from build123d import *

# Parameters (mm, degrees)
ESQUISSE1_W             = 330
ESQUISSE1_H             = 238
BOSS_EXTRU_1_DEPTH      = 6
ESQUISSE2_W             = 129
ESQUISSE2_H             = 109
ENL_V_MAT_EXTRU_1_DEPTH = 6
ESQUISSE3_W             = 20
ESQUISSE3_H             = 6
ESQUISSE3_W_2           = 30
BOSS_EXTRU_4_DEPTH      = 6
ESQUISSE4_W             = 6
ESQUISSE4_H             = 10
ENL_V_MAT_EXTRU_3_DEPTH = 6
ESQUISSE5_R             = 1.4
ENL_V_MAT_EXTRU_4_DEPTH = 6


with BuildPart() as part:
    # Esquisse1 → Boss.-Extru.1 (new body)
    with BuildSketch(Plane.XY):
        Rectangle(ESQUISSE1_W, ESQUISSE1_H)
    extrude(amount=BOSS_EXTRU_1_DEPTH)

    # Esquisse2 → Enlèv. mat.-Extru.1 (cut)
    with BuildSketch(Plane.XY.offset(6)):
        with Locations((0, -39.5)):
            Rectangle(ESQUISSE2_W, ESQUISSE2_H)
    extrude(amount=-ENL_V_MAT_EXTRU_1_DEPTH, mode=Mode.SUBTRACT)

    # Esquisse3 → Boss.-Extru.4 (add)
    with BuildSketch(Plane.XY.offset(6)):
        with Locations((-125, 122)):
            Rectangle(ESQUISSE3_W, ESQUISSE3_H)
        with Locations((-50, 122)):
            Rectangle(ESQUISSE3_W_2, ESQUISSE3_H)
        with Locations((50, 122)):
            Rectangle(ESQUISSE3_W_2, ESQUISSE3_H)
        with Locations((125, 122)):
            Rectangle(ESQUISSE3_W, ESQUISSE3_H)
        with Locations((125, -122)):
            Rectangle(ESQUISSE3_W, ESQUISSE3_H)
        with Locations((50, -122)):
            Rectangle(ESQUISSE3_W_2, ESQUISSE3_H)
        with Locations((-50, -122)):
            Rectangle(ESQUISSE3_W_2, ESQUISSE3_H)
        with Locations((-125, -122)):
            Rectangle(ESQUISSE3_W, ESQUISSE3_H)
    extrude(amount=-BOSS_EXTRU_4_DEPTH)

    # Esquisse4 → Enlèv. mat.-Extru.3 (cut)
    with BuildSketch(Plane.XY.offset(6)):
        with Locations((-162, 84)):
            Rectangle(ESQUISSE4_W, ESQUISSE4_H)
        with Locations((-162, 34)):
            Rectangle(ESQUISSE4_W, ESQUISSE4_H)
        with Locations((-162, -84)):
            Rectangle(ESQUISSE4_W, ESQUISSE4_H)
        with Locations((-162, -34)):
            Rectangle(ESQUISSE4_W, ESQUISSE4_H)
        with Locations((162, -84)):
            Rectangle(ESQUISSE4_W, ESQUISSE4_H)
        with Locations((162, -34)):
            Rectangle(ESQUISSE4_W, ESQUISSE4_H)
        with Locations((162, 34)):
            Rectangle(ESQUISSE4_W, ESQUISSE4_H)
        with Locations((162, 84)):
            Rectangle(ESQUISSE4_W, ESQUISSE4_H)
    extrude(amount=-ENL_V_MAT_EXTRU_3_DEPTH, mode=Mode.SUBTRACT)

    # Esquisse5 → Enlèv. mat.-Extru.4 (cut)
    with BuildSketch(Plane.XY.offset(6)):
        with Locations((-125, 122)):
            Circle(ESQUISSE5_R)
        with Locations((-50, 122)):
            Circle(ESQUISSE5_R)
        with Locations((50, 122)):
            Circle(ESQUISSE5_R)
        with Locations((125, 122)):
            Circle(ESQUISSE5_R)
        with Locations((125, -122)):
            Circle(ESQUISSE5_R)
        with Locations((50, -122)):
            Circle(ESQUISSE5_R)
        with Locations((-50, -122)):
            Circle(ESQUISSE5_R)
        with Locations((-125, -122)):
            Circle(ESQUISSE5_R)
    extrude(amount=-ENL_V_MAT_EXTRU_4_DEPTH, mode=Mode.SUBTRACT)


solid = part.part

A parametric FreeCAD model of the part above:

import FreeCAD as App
import Part
import Sketcher
Q = App.Units.Quantity

doc = App.newDocument("Part")
body = doc.addObject("PartDesign::Body", "Body")

sketch1 = body.newObject("Sketcher::SketchObject", "Sketch")
sketch1.AttachmentSupport = (doc.getObject("XY_Plane"), [""])
sketch1.MapMode = "FlatFace"
sketch1.addGeometry(Part.LineSegment(App.Vector(-165, 119, 0), App.Vector(-165, -119, 0)), False)
sketch1.addGeometry(Part.LineSegment(App.Vector(-165, -119, 0), App.Vector(165, -119, 0)), False)
sketch1.addGeometry(Part.LineSegment(App.Vector(165, -119, 0), App.Vector(165, 119, 0)), False)
sketch1.addGeometry(Part.LineSegment(App.Vector(165, 119, 0), App.Vector(-165, 119, 0)), False)
sketch1.addConstraint(Sketcher.Constraint("Coincident", 0, 2, 1, 1))
sketch1.addConstraint(Sketcher.Constraint("Coincident", 1, 2, 2, 1))
sketch1.addConstraint(Sketcher.Constraint("Coincident", 2, 2, 3, 1))
sketch1.addConstraint(Sketcher.Constraint("Coincident", 3, 2, 0, 1))
sketch1.addConstraint(Sketcher.Constraint("Vertical", 0))
sketch1.addConstraint(Sketcher.Constraint("Horizontal", 1))
sketch1.addConstraint(Sketcher.Constraint("Vertical", 2))
sketch1.addConstraint(Sketcher.Constraint("Horizontal", 3))
sketch1.addConstraint(Sketcher.Constraint("Symmetric", 0, 2, 2, 2, -1, 1))
sketch1.addConstraint(Sketcher.Constraint("DistanceX", 1, 1, 1, 2, Q("330 mm")))
sketch1.addConstraint(Sketcher.Constraint("DistanceY", 0, 2, 0, 1, Q("238 mm")))
pad1 = body.newObject("PartDesign::Pad", "Pad")
pad1.Profile = sketch1
pad1.Length = 6

sketch2 = body.newObject("Sketcher::SketchObject", "Sketch001")
sketch2.AttachmentSupport = (doc.getObject("XY_Plane"), [""])
sketch2.MapMode = "FlatFace"
sketch2.AttachmentOffset = App.Placement(App.Vector(0, 0, 6), App.Rotation())
sketch2.addGeometry(Part.LineSegment(App.Vector(-64, 15, 0), App.Vector(-64, -94, 0)), False)
sketch2.addGeometry(Part.LineSegment(App.Vector(-64, -94, 0), App.Vector(64, -94, 0)), False)
sketch2.addGeometry(Part.LineSegment(App.Vector(64, -94, 0), App.Vector(64, 15, 0)), False)
sketch2.addGeometry(Part.LineSegment(App.Vector(64, 15, 0), App.Vector(-64, 15, 0)), False)
sketch2.addConstraint(Sketcher.Constraint("Coincident", 0, 2, 1, 1))
sketch2.addConstraint(Sketcher.Constraint("Coincident", 1, 2, 2, 1))
sketch2.addConstraint(Sketcher.Constraint("Coincident", 2, 2, 3, 1))
sketch2.addConstraint(Sketcher.Constraint("Coincident", 3, 2, 0, 1))
sketch2.addConstraint(Sketcher.Constraint("Vertical", 0))
sketch2.addConstraint(Sketcher.Constraint("Horizontal", 1))
sketch2.addConstraint(Sketcher.Constraint("Vertical", 2))
sketch2.addConstraint(Sketcher.Constraint("Horizontal", 3))
sketch2.addConstraint(Sketcher.Constraint("DistanceX", 1, 1, 1, 2, Q("129 mm")))
sketch2.addConstraint(Sketcher.Constraint("DistanceY", 0, 2, 0, 1, Q("109 mm")))
sketch2.addConstraint(Sketcher.Constraint("DistanceY", 0, 2, -1, 1, Q("94 mm")))
sketch2.addConstraint(Sketcher.Constraint("DistanceX", 0, 2, -1, 1, Q("64.5 mm")))
pocket1 = body.newObject("PartDesign::Pocket", "Pocket")
pocket1.Profile = sketch2
pocket1.Length = 6

sketch3 = body.newObject("Sketcher::SketchObject", "Sketch002")
sketch3.AttachmentSupport = (doc.getObject("XY_Plane"), [""])
sketch3.MapMode = "FlatFace"
sketch3.AttachmentOffset = App.Placement(App.Vector(0, 0, 6), App.Rotation())
sketch3.addGeometry(Part.LineSegment(App.Vector(-135, 125, 0), App.Vector(-135, 119, 0)), False)
sketch3.addGeometry(Part.LineSegment(App.Vector(-135, 119, 0), App.Vector(-115, 119, 0)), False)
sketch3.addGeometry(Part.LineSegment(App.Vector(-115, 119, 0), App.Vector(-115, 125, 0)), False)
sketch3.addGeometry(Part.LineSegment(App.Vector(-115, 125, 0), App.Vector(-135, 125, 0)), False)
sketch3.addGeometry(Part.LineSegment(App.Vector(-65, 125, 0), App.Vector(-65, 119, 0)), False)
sketch3.addGeometry(Part.LineSegment(App.Vector(-65, 119, 0), App.Vector(-35, 119, 0)), False)
sketch3.addGeometry(Part.LineSegment(App.Vector(-35, 119, 0), App.Vector(-35, 125, 0)), False)
sketch3.addGeometry(Part.LineSegment(App.Vector(-35, 125, 0), App.Vector(-65, 125, 0)), False)
sketch3.addGeometry(Part.LineSegment(App.Vector(35, 125, 0), App.Vector(35, 119, 0)), False)
sketch3.addGeometry(Part.LineSegment(App.Vector(35, 119, 0), App.Vector(65, 119, 0)), False)
sketch3.addGeometry(Part.LineSegment(App.Vector(65, 119, 0), App.Vector(65, 125, 0)), False)
sketch3.addGeometry(Part.LineSegment(App.Vector(65, 125, 0), App.Vector(35, 125, 0)), False)
sketch3.addGeometry(Part.LineSegment(App.Vector(115, 125, 0), App.Vector(115, 119, 0)), False)
sketch3.addGeometry(Part.LineSegment(App.Vector(115, 119, 0), App.Vector(135, 119, 0)), False)
sketch3.addGeometry(Part.LineSegment(App.Vector(135, 119, 0), App.Vector(135, 125, 0)), False)
sketch3.addGeometry(Part.LineSegment(App.Vector(135, 125, 0), App.Vector(115, 125, 0)), False)
sketch3.addGeometry(Part.LineSegment(App.Vector(115, -119, 0), App.Vector(115, -125, 0)), False)
sketch3.addGeometry(Part.LineSegment(App.Vector(115, -125, 0), App.Vector(135, -125, 0)), False)
sketch3.addGeometry(Part.LineSegment(App.Vector(135, -125, 0), App.Vector(135, -119, 0)), False)
sketch3.addGeometry(Part.LineSegment(App.Vector(135, -119, 0), App.Vector(115, -119, 0)), False)
sketch3.addGeometry(Part.LineSegment(App.Vector(35, -119, 0), App.Vector(35, -125, 0)), False)
sketch3.addGeometry(Part.LineSegment(App.Vector(35, -125, 0), App.Vector(65, -125, 0)), False)
sketch3.addGeometry(Part.LineSegment(App.Vector(65, -125, 0), App.Vector(65, -119, 0)), False)
sketch3.addGeometry(Part.LineSegment(App.Vector(65, -119, 0), App.Vector(35, -119, 0)), False)
sketch3.addGeometry(Part.LineSegment(App.Vector(-65, -119, 0), App.Vector(-65, -125, 0)), False)
sketch3.addGeometry(Part.LineSegment(App.Vector(-65, -125, 0), App.Vector(-35, -125, 0)), False)
sketch3.addGeometry(Part.LineSegment(App.Vector(-35, -125, 0), App.Vector(-35, -119, 0)), False)
sketch3.addGeometry(Part.LineSegment(App.Vector(-35, -119, 0), App.Vector(-65, -119, 0)), False)
sketch3.addGeometry(Part.LineSegment(App.Vector(-135, -119, 0), App.Vector(-135, -125, 0)), False)
sketch3.addGeometry(Part.LineSegment(App.Vector(-135, -125, 0), App.Vector(-115, -125, 0)), False)
sketch3.addGeometry(Part.LineSegment(App.Vector(-115, -125, 0), App.Vector(-115, -119, 0)), False)
sketch3.addGeometry(Part.LineSegment(App.Vector(-115, -119, 0), App.Vector(-135, -119, 0)), False)
sketch3.addConstraint(Sketcher.Constraint("Coincident", 0, 2, 1, 1))
sketch3.addConstraint(Sketcher.Constraint("Coincident", 1, 2, 2, 1))
sketch3.addConstraint(Sketcher.Constraint("Coincident", 2, 2, 3, 1))
sketch3.addConstraint(Sketcher.Constraint("Coincident", 3, 2, 0, 1))
sketch3.addConstraint(Sketcher.Constraint("Coincident", 4, 2, 5, 1))
sketch3.addConstraint(Sketcher.Constraint("Coincident", 5, 2, 6, 1))
sketch3.addConstraint(Sketcher.Constraint("Coincident", 6, 2, 7, 1))
sketch3.addConstraint(Sketcher.Constraint("Coincident", 7, 2, 4, 1))
sketch3.addConstraint(Sketcher.Constraint("Coincident", 8, 2, 9, 1))
sketch3.addConstraint(Sketcher.Constraint("Coincident", 9, 2, 10, 1))
sketch3.addConstraint(Sketcher.Constraint("Coincident", 10, 2, 11, 1))
sketch3.addConstraint(Sketcher.Constraint("Coincident", 11, 2, 8, 1))
sketch3.addConstraint(Sketcher.Constraint("Coincident", 12, 2, 13, 1))
sketch3.addConstraint(Sketcher.Constraint("Coincident", 13, 2, 14, 1))
sketch3.addConstraint(Sketcher.Constraint("Coincident", 14, 2, 15, 1))
sketch3.addConstraint(Sketcher.Constraint("Coincident", 15, 2, 12, 1))
sketch3.addConstraint(Sketcher.Constraint("Coincident", 16, 2, 17, 1))
sketch3.addConstraint(Sketcher.Constraint("Coincident", 17, 2, 18, 1))
sketch3.addConstraint(Sketcher.Constraint("Coincident", 18, 2, 19, 1))
sketch3.addConstraint(Sketcher.Constraint("Coincident", 19, 2, 16, 1))
sketch3.addConstraint(Sketcher.Constraint("Coincident", 20, 2, 21, 1))
sketch3.addConstraint(Sketcher.Constraint("Coincident", 21, 2, 22, 1))
sketch3.addConstraint(Sketcher.Constraint("Coincident", 22, 2, 23, 1))
sketch3.addConstraint(Sketcher.Constraint("Coincident", 23, 2, 20, 1))
sketch3.addConstraint(Sketcher.Constraint("Coincident", 24, 2, 25, 1))
sketch3.addConstraint(Sketcher.Constraint("Coincident", 25, 2, 26, 1))
sketch3.addConstraint(Sketcher.Constraint("Coincident", 26, 2, 27, 1))
sketch3.addConstraint(Sketcher.Constraint("Coincident", 27, 2, 24, 1))
sketch3.addConstraint(Sketcher.Constraint("Coincident", 28, 2, 29, 1))
sketch3.addConstraint(Sketcher.Constraint("Coincident", 29, 2, 30, 1))
sketch3.addConstraint(Sketcher.Constraint("Coincident", 30, 2, 31, 1))
sketch3.addConstraint(Sketcher.Constraint("Coincident", 31, 2, 28, 1))
sketch3.addConstraint(Sketcher.Constraint("Vertical", 0))
sketch3.addConstraint(Sketcher.Constraint("Horizontal", 1))
sketch3.addConstraint(Sketcher.Constraint("Vertical", 2))
sketch3.addConstraint(Sketcher.Constraint("Horizontal", 3))
sketch3.addConstraint(Sketcher.Constraint("Vertical", 4))
sketch3.addConstraint(Sketcher.Constraint("Horizontal", 5))
sketch3.addConstraint(Sketcher.Constraint("Vertical", 6))
sketch3.addConstraint(Sketcher.Constraint("Horizontal", 7))
sketch3.addConstraint(Sketcher.Constraint("Vertical", 8))
sketch3.addConstraint(Sketcher.Constraint("Horizontal", 9))
sketch3.addConstraint(Sketcher.Constraint("Vertical", 10))
sketch3.addConstraint(Sketcher.Constraint("Horizontal", 11))
sketch3.addConstraint(Sketcher.Constraint("Vertical", 12))
sketch3.addConstraint(Sketcher.Constraint("Horizontal", 13))
sketch3.addConstraint(Sketcher.Constraint("Vertical", 14))
sketch3.addConstraint(Sketcher.Constraint("Horizontal", 15))
sketch3.addConstraint(Sketcher.Constraint("Vertical", 16))
sketch3.addConstraint(Sketcher.Constraint("Horizontal", 17))
sketch3.addConstraint(Sketcher.Constraint("Vertical", 18))
sketch3.addConstraint(Sketcher.Constraint("Horizontal", 19))
sketch3.addConstraint(Sketcher.Constraint("Vertical", 20))
sketch3.addConstraint(Sketcher.Constraint("Horizontal", 21))
sketch3.addConstraint(Sketcher.Constraint("Vertical", 22))
sketch3.addConstraint(Sketcher.Constraint("Horizontal", 23))
sketch3.addConstraint(Sketcher.Constraint("Vertical", 24))
sketch3.addConstraint(Sketcher.Constraint("Horizontal", 25))
sketch3.addConstraint(Sketcher.Constraint("Vertical", 26))
sketch3.addConstraint(Sketcher.Constraint("Horizontal", 27))
sketch3.addConstraint(Sketcher.Constraint("Vertical", 28))
sketch3.addConstraint(Sketcher.Constraint("Horizontal", 29))
sketch3.addConstraint(Sketcher.Constraint("Vertical", 30))
sketch3.addConstraint(Sketcher.Constraint("Horizontal", 31))
sketch3.addConstraint(Sketcher.Constraint("Symmetric", 2, 2, 16, 2, -1, 1))
sketch3.addConstraint(Sketcher.Constraint("Symmetric", 0, 2, 18, 2, -1, 1))
sketch3.addConstraint(Sketcher.Constraint("Symmetric", 6, 2, 20, 2, -1, 1))
sketch3.addConstraint(Sketcher.Constraint("Symmetric", 4, 2, 22, 2, -1, 1))
sketch3.addConstraint(Sketcher.Constraint("Symmetric", 10, 2, 24, 2, -1, 1))
sketch3.addConstraint(Sketcher.Constraint("Symmetric", 8, 2, 26, 2, -1, 1))
sketch3.addConstraint(Sketcher.Constraint("Symmetric", 14, 2, 28, 2, -1, 1))
sketch3.addConstraint(Sketcher.Constraint("Symmetric", 12, 2, 30, 2, -1, 1))
sketch3.addConstraint(Sketcher.Constraint("Symmetric", 5, 2, 8, 2, -2))
sketch3.addConstraint(Sketcher.Constraint("Symmetric", 7, 2, 10, 2, -2))
sketch3.addConstraint(Sketcher.Constraint("Symmetric", 1, 2, 12, 2, -2))
sketch3.addConstraint(Sketcher.Constraint("Symmetric", 3, 2, 14, 2, -2))
sketch3.addConstraint(Sketcher.Constraint("Horizontal", 1, 2, 4, 2))
sketch3.addConstraint(Sketcher.Constraint("Horizontal", 3, 2, 6, 2))
sketch3.addConstraint(Sketcher.Constraint("DistanceX", 1, 1, 1, 2, Q("20 mm")))
sketch3.addConstraint(Sketcher.Constraint("DistanceX", 5, 1, 5, 2, Q("30 mm")))
sketch3.addConstraint(Sketcher.Constraint("DistanceY", 0, 2, 0, 1, Q("6 mm")))
sketch3.addConstraint(Sketcher.Constraint("DistanceX", 0, 2, -1, 1, Q("135 mm")))
sketch3.addConstraint(Sketcher.Constraint("DistanceY", -1, 1, 0, 2, Q("119 mm")))
sketch3.addConstraint(Sketcher.Constraint("DistanceX", 4, 2, -1, 1, Q("65 mm")))
pad2 = body.newObject("PartDesign::Pad", "Pad001")
pad2.Profile = sketch3
pad2.Length = 6
pad2.Reversed = True

sketch4 = body.newObject("Sketcher::SketchObject", "Sketch003")
sketch4.AttachmentSupport = (doc.getObject("XY_Plane"), [""])
sketch4.MapMode = "FlatFace"
sketch4.AttachmentOffset = App.Placement(App.Vector(0, 0, 6), App.Rotation())
sketch4.addGeometry(Part.LineSegment(App.Vector(-165, 89, 0), App.Vector(-165, 79, 0)), False)
sketch4.addGeometry(Part.LineSegment(App.Vector(-165, 79, 0), App.Vector(-159, 79, 0)), False)
sketch4.addGeometry(Part.LineSegment(App.Vector(-159, 79, 0), App.Vector(-159, 89, 0)), False)
sketch4.addGeometry(Part.LineSegment(App.Vector(-159, 89, 0), App.Vector(-165, 89, 0)), False)
sketch4.addGeometry(Part.LineSegment(App.Vector(-165, 39, 0), App.Vector(-165, 29, 0)), False)
sketch4.addGeometry(Part.LineSegment(App.Vector(-165, 29, 0), App.Vector(-159, 29, 0)), False)
sketch4.addGeometry(Part.LineSegment(App.Vector(-159, 29, 0), App.Vector(-159, 39, 0)), False)
sketch4.addGeometry(Part.LineSegment(App.Vector(-159, 39, 0), App.Vector(-165, 39, 0)), False)
sketch4.addGeometry(Part.LineSegment(App.Vector(-165, -79, 0), App.Vector(-165, -89, 0)), False)
sketch4.addGeometry(Part.LineSegment(App.Vector(-165, -89, 0), App.Vector(-159, -89, 0)), False)
sketch4.addGeometry(Part.LineSegment(App.Vector(-159, -89, 0), App.Vector(-159, -79, 0)), False)
sketch4.addGeometry(Part.LineSegment(App.Vector(-159, -79, 0), App.Vector(-165, -79, 0)), False)
sketch4.addGeometry(Part.LineSegment(App.Vector(-165, -29, 0), App.Vector(-165, -39, 0)), False)
sketch4.addGeometry(Part.LineSegment(App.Vector(-165, -39, 0), App.Vector(-159, -39, 0)), False)
sketch4.addGeometry(Part.LineSegment(App.Vector(-159, -39, 0), App.Vector(-159, -29, 0)), False)
sketch4.addGeometry(Part.LineSegment(App.Vector(-159, -29, 0), App.Vector(-165, -29, 0)), False)
sketch4.addGeometry(Part.LineSegment(App.Vector(159, -79, 0), App.Vector(159, -89, 0)), False)
sketch4.addGeometry(Part.LineSegment(App.Vector(159, -89, 0), App.Vector(165, -89, 0)), False)
sketch4.addGeometry(Part.LineSegment(App.Vector(165, -89, 0), App.Vector(165, -79, 0)), False)
sketch4.addGeometry(Part.LineSegment(App.Vector(165, -79, 0), App.Vector(159, -79, 0)), False)
sketch4.addGeometry(Part.LineSegment(App.Vector(159, -29, 0), App.Vector(159, -39, 0)), False)
sketch4.addGeometry(Part.LineSegment(App.Vector(159, -39, 0), App.Vector(165, -39, 0)), False)
sketch4.addGeometry(Part.LineSegment(App.Vector(165, -39, 0), App.Vector(165, -29, 0)), False)
sketch4.addGeometry(Part.LineSegment(App.Vector(165, -29, 0), App.Vector(159, -29, 0)), False)
sketch4.addGeometry(Part.LineSegment(App.Vector(159, 39, 0), App.Vector(159, 29, 0)), False)
sketch4.addGeometry(Part.LineSegment(App.Vector(159, 29, 0), App.Vector(165, 29, 0)), False)
sketch4.addGeometry(Part.LineSegment(App.Vector(165, 29, 0), App.Vector(165, 39, 0)), False)
sketch4.addGeometry(Part.LineSegment(App.Vector(165, 39, 0), App.Vector(159, 39, 0)), False)
sketch4.addGeometry(Part.LineSegment(App.Vector(159, 89, 0), App.Vector(159, 79, 0)), False)
sketch4.addGeometry(Part.LineSegment(App.Vector(159, 79, 0), App.Vector(165, 79, 0)), False)
sketch4.addGeometry(Part.LineSegment(App.Vector(165, 79, 0), App.Vector(165, 89, 0)), False)
sketch4.addGeometry(Part.LineSegment(App.Vector(165, 89, 0), App.Vector(159, 89, 0)), False)
sketch4.addConstraint(Sketcher.Constraint("Coincident", 0, 2, 1, 1))
sketch4.addConstraint(Sketcher.Constraint("Coincident", 1, 2, 2, 1))
sketch4.addConstraint(Sketcher.Constraint("Coincident", 2, 2, 3, 1))
sketch4.addConstraint(Sketcher.Constraint("Coincident", 3, 2, 0, 1))
sketch4.addConstraint(Sketcher.Constraint("Coincident", 4, 2, 5, 1))
sketch4.addConstraint(Sketcher.Constraint("Coincident", 5, 2, 6, 1))
sketch4.addConstraint(Sketcher.Constraint("Coincident", 6, 2, 7, 1))
sketch4.addConstraint(Sketcher.Constraint("Coincident", 7, 2, 4, 1))
sketch4.addConstraint(Sketcher.Constraint("Coincident", 8, 2, 9, 1))
sketch4.addConstraint(Sketcher.Constraint("Coincident", 9, 2, 10, 1))
sketch4.addConstraint(Sketcher.Constraint("Coincident", 10, 2, 11, 1))
sketch4.addConstraint(Sketcher.Constraint("Coincident", 11, 2, 8, 1))
sketch4.addConstraint(Sketcher.Constraint("Coincident", 12, 2, 13, 1))
sketch4.addConstraint(Sketcher.Constraint("Coincident", 13, 2, 14, 1))
sketch4.addConstraint(Sketcher.Constraint("Coincident", 14, 2, 15, 1))
sketch4.addConstraint(Sketcher.Constraint("Coincident", 15, 2, 12, 1))
sketch4.addConstraint(Sketcher.Constraint("Coincident", 16, 2, 17, 1))
sketch4.addConstraint(Sketcher.Constraint("Coincident", 17, 2, 18, 1))
sketch4.addConstraint(Sketcher.Constraint("Coincident", 18, 2, 19, 1))
sketch4.addConstraint(Sketcher.Constraint("Coincident", 19, 2, 16, 1))
sketch4.addConstraint(Sketcher.Constraint("Coincident", 20, 2, 21, 1))
sketch4.addConstraint(Sketcher.Constraint("Coincident", 21, 2, 22, 1))
sketch4.addConstraint(Sketcher.Constraint("Coincident", 22, 2, 23, 1))
sketch4.addConstraint(Sketcher.Constraint("Coincident", 23, 2, 20, 1))
sketch4.addConstraint(Sketcher.Constraint("Coincident", 24, 2, 25, 1))
sketch4.addConstraint(Sketcher.Constraint("Coincident", 25, 2, 26, 1))
sketch4.addConstraint(Sketcher.Constraint("Coincident", 26, 2, 27, 1))
sketch4.addConstraint(Sketcher.Constraint("Coincident", 27, 2, 24, 1))
sketch4.addConstraint(Sketcher.Constraint("Coincident", 28, 2, 29, 1))
sketch4.addConstraint(Sketcher.Constraint("Coincident", 29, 2, 30, 1))
sketch4.addConstraint(Sketcher.Constraint("Coincident", 30, 2, 31, 1))
sketch4.addConstraint(Sketcher.Constraint("Coincident", 31, 2, 28, 1))
sketch4.addConstraint(Sketcher.Constraint("Vertical", 0))
sketch4.addConstraint(Sketcher.Constraint("Horizontal", 1))
sketch4.addConstraint(Sketcher.Constraint("Vertical", 2))
sketch4.addConstraint(Sketcher.Constraint("Horizontal", 3))
sketch4.addConstraint(Sketcher.Constraint("Vertical", 4))
sketch4.addConstraint(Sketcher.Constraint("Horizontal", 5))
sketch4.addConstraint(Sketcher.Constraint("Vertical", 6))
sketch4.addConstraint(Sketcher.Constraint("Horizontal", 7))
sketch4.addConstraint(Sketcher.Constraint("Vertical", 8))
sketch4.addConstraint(Sketcher.Constraint("Horizontal", 9))
sketch4.addConstraint(Sketcher.Constraint("Vertical", 10))
sketch4.addConstraint(Sketcher.Constraint("Horizontal", 11))
sketch4.addConstraint(Sketcher.Constraint("Vertical", 12))
sketch4.addConstraint(Sketcher.Constraint("Horizontal", 13))
sketch4.addConstraint(Sketcher.Constraint("Vertical", 14))
sketch4.addConstraint(Sketcher.Constraint("Horizontal", 15))
sketch4.addConstraint(Sketcher.Constraint("Vertical", 16))
sketch4.addConstraint(Sketcher.Constraint("Horizontal", 17))
sketch4.addConstraint(Sketcher.Constraint("Vertical", 18))
sketch4.addConstraint(Sketcher.Constraint("Horizontal", 19))
sketch4.addConstraint(Sketcher.Constraint("Vertical", 20))
sketch4.addConstraint(Sketcher.Constraint("Horizontal", 21))
sketch4.addConstraint(Sketcher.Constraint("Vertical", 22))
sketch4.addConstraint(Sketcher.Constraint("Horizontal", 23))
sketch4.addConstraint(Sketcher.Constraint("Vertical", 24))
sketch4.addConstraint(Sketcher.Constraint("Horizontal", 25))
sketch4.addConstraint(Sketcher.Constraint("Vertical", 26))
sketch4.addConstraint(Sketcher.Constraint("Horizontal", 27))
sketch4.addConstraint(Sketcher.Constraint("Vertical", 28))
sketch4.addConstraint(Sketcher.Constraint("Horizontal", 29))
sketch4.addConstraint(Sketcher.Constraint("Vertical", 30))
sketch4.addConstraint(Sketcher.Constraint("Horizontal", 31))
sketch4.addConstraint(Sketcher.Constraint("Symmetric", 2, 2, 16, 2, -1, 1))
sketch4.addConstraint(Sketcher.Constraint("Symmetric", 0, 2, 18, 2, -1, 1))
sketch4.addConstraint(Sketcher.Constraint("Symmetric", 6, 2, 20, 2, -1, 1))
sketch4.addConstraint(Sketcher.Constraint("Symmetric", 4, 2, 22, 2, -1, 1))
sketch4.addConstraint(Sketcher.Constraint("Symmetric", 14, 2, 24, 2, -1, 1))
sketch4.addConstraint(Sketcher.Constraint("Symmetric", 12, 2, 26, 2, -1, 1))
sketch4.addConstraint(Sketcher.Constraint("Symmetric", 10, 2, 28, 2, -1, 1))
sketch4.addConstraint(Sketcher.Constraint("Symmetric", 8, 2, 30, 2, -1, 1))
sketch4.addConstraint(Sketcher.Constraint("Symmetric", 9, 2, 16, 2, -2))
sketch4.addConstraint(Sketcher.Constraint("Symmetric", 11, 2, 18, 2, -2))
sketch4.addConstraint(Sketcher.Constraint("Symmetric", 13, 2, 20, 2, -2))
sketch4.addConstraint(Sketcher.Constraint("Symmetric", 15, 2, 22, 2, -2))
sketch4.addConstraint(Sketcher.Constraint("Vertical", 3, 2, 4, 2))
sketch4.addConstraint(Sketcher.Constraint("Vertical", 2, 2, 5, 2))
sketch4.addConstraint(Sketcher.Constraint("Equal", 2, 4))
sketch4.addConstraint(Sketcher.Constraint("DistanceX", 1, 1, 1, 2, Q("6 mm")))
sketch4.addConstraint(Sketcher.Constraint("DistanceY", 0, 2, 0, 1, Q("10 mm")))
sketch4.addConstraint(Sketcher.Constraint("DistanceX", 0, 2, -1, 1, Q("165 mm")))
sketch4.addConstraint(Sketcher.Constraint("DistanceY", -1, 1, 0, 2, Q("79 mm")))
sketch4.addConstraint(Sketcher.Constraint("DistanceY", -1, 1, 4, 2, Q("29 mm")))
pocket2 = body.newObject("PartDesign::Pocket", "Pocket001")
pocket2.Profile = sketch4
pocket2.Length = 6

sketch5 = body.newObject("Sketcher::SketchObject", "Sketch004")
sketch5.AttachmentSupport = (doc.getObject("XY_Plane"), [""])
sketch5.MapMode = "FlatFace"
sketch5.AttachmentOffset = App.Placement(App.Vector(0, 0, 6), App.Rotation())
sketch5.addGeometry(Part.Circle(App.Vector(-125, 122, 0), App.Vector(0, 0, 1), 1.4), False)
sketch5.addGeometry(Part.Circle(App.Vector(-50, 122, 0), App.Vector(0, 0, 1), 1.4), False)
sketch5.addGeometry(Part.Circle(App.Vector(50, 122, 0), App.Vector(0, 0, 1), 1.4), False)
sketch5.addGeometry(Part.Circle(App.Vector(125, 122, 0), App.Vector(0, 0, 1), 1.4), False)
sketch5.addGeometry(Part.Circle(App.Vector(125, -122, 0), App.Vector(0, 0, 1), 1.4), False)
sketch5.addGeometry(Part.Circle(App.Vector(50, -122, 0), App.Vector(0, 0, 1), 1.4), False)
sketch5.addGeometry(Part.Circle(App.Vector(-50, -122, 0), App.Vector(0, 0, 1), 1.4), False)
sketch5.addGeometry(Part.Circle(App.Vector(-125, -122, 0), App.Vector(0, 0, 1), 1.4), False)
sketch5.addConstraint(Sketcher.Constraint("Equal", 0, 1))
sketch5.addConstraint(Sketcher.Constraint("Equal", 1, 2))
sketch5.addConstraint(Sketcher.Constraint("Equal", 2, 3))
sketch5.addConstraint(Sketcher.Constraint("Equal", 3, 4))
sketch5.addConstraint(Sketcher.Constraint("Equal", 4, 5))
sketch5.addConstraint(Sketcher.Constraint("Equal", 5, 6))
sketch5.addConstraint(Sketcher.Constraint("Equal", 6, 7))
sketch5.addConstraint(Sketcher.Constraint("Symmetric", 0, 3, 4, 3, -1, 1))
sketch5.addConstraint(Sketcher.Constraint("Symmetric", 1, 3, 5, 3, -1, 1))
sketch5.addConstraint(Sketcher.Constraint("Symmetric", 2, 3, 6, 3, -1, 1))
sketch5.addConstraint(Sketcher.Constraint("Symmetric", 3, 3, 7, 3, -1, 1))
sketch5.addConstraint(Sketcher.Constraint("Symmetric", 1, 3, 2, 3, -2))
sketch5.addConstraint(Sketcher.Constraint("Symmetric", 0, 3, 3, 3, -2))
sketch5.addConstraint(Sketcher.Constraint("Horizontal", 0, 3, 1, 3))
sketch5.addConstraint(Sketcher.Constraint("Diameter", 0, Q("2.8 mm")))
sketch5.addConstraint(Sketcher.Constraint("DistanceX", 0, 3, -1, 1, Q("125 mm")))
sketch5.addConstraint(Sketcher.Constraint("DistanceY", -1, 1, 0, 3, Q("122 mm")))
sketch5.addConstraint(Sketcher.Constraint("DistanceX", 1, 3, -1, 1, Q("50 mm")))
pocket3 = body.newObject("PartDesign::Pocket", "Pocket002")
pocket3.Profile = sketch5
pocket3.Length = 6

doc.recompute()
